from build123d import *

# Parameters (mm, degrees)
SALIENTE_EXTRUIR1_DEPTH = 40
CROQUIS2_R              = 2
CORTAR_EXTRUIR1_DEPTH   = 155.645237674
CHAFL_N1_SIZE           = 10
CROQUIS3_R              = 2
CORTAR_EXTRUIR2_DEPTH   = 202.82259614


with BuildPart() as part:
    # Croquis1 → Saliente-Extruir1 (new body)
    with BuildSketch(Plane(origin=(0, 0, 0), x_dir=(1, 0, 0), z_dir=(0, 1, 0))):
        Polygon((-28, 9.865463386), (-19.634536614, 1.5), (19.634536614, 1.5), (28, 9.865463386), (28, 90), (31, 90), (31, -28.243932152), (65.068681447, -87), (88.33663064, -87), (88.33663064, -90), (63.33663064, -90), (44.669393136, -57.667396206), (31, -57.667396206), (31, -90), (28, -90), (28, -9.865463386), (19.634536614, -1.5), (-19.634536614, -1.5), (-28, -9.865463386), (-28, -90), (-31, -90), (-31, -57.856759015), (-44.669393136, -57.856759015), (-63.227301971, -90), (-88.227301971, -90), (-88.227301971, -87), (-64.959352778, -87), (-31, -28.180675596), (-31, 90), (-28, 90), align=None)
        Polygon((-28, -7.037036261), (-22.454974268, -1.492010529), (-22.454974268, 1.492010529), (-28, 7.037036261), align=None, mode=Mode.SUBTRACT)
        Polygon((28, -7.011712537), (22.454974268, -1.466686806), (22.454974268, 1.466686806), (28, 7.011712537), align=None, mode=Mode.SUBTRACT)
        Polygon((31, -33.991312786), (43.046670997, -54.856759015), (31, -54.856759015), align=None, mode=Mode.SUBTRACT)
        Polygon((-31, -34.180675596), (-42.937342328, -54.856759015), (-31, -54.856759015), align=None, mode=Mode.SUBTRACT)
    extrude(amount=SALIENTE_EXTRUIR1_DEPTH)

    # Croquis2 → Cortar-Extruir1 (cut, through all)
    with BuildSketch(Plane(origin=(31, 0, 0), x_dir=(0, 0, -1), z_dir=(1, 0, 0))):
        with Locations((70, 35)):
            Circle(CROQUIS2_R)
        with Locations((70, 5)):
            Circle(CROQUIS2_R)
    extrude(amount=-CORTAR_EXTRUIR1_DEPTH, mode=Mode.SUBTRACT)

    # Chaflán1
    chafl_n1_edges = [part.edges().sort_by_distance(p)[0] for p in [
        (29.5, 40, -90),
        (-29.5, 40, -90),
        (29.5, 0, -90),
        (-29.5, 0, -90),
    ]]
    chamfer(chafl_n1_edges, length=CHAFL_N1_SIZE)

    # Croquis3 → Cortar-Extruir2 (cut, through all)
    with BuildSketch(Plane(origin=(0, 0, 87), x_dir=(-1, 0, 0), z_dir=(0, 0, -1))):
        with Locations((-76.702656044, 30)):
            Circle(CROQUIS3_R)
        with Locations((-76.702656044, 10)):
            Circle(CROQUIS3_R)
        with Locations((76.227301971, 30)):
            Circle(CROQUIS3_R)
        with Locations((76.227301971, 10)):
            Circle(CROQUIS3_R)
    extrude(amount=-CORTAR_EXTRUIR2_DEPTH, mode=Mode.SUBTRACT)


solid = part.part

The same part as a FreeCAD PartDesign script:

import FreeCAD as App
import Part
import Sketcher

V = App.Vector
Q = App.Units.Quantity


def edges_at(feature, points):
    """Names of the edges that pass closest to the given points."""
    edges = feature.Shape.Edges
    near = lambda p: min(range(len(edges)), key=lambda i: edges[i].distToShape(Part.Vertex(*p))[0])
    return sorted({f"Edge{near(p) + 1}" for p in points})

doc = App.newDocument("Part")
params = doc.addObject("Spreadsheet::Sheet", "Params")
for row, (alias, value) in enumerate([
    ("sketch1_width", "3 mm"),
    ("sketch1_width2", "25 mm"),
    ("pad1_length", "40 mm"),
    ("sketch2_diameter", "4 mm"),
    ("chamfer_size", "10 mm"),
    ("sketch3_diameter", "4 mm"),
], start=1):
    params.set(f"A{row}", alias)
    params.set(f"B{row}", "=" + value)
    params.setAlias(f"B{row}", alias)

body = doc.addObject("PartDesign::Body", "Body")

sketch1 = body.newObject("Sketcher::SketchObject", "Sketch")
sketch1.AttachmentSupport = (doc.getObject("XZ_Plane"), [""])
sketch1.MapMode = "FlatFace"
sketch1.addGeometry(Part.LineSegment(V(-19.634537, -1.5, 0), V(-28, -9.865463, 0)), False)
sketch1.addGeometry(Part.LineSegment(V(-28, -9.865463, 0), V(-28, -90, 0)), False)
sketch1.addGeometry(Part.LineSegment(V(-28, -90, 0), V(-31, -90, 0)), False)
sketch1.addGeometry(Part.LineSegment(V(-31, -90, 0), V(-31, 28.180676, 0)), False)
sketch1.addGeometry(Part.LineSegment(V(-31, 28.180676, 0), V(-64.959353, 87, 0)), False)
sketch1.addGeometry(Part.LineSegment(V(-64.959353, 87, 0), V(-88.227302, 87, 0)), False)
sketch1.addGeometry(Part.LineSegment(V(-88.227302, 87, 0), V(-88.227302, 90, 0)), False)
sketch1.addGeometry(Part.LineSegment(V(-88.227302, 90, 0), V(-63.227302, 90, 0)), False)
sketch1.addGeometry(Part.LineSegment(V(-63.227302, 90, 0), V(-44.669393, 57.856759, 0)), False)
sketch1.addGeometry(Part.LineSegment(V(-44.669393, 57.856759, 0), V(-31, 57.856759, 0)), False)
sketch1.addGeometry(Part.LineSegment(V(-31, 57.856759, 0), V(-31, 90, 0)), False)
sketch1.addGeometry(Part.LineSegment(V(-31, 90, 0), V(-28, 90, 0)), False)
sketch1.addGeometry(Part.LineSegment(V(-28, 90, 0), V(-28, 9.865463, 0)), False)
sketch1.addGeometry(Part.LineSegment(V(-28, 9.865463, 0), V(-19.634537, 1.5, 0)), False)
sketch1.addGeometry(Part.LineSegment(V(-19.634537, 1.5, 0), V(19.634537, 1.5, 0)), False)
sketch1.addGeometry(Part.LineSegment(V(19.634537, 1.5, 0), V(28, 9.865463, 0)), False)
sketch1.addGeometry(Part.LineSegment(V(28, 9.865463, 0), V(28, 90, 0)), False)
sketch1.addGeometry(Part.LineSegment(V(28, 90, 0), V(31, 90, 0)), False)
sketch1.addGeometry(Part.LineSegment(V(31, 90, 0), V(31, 57.667396, 0)), False)
sketch1.addGeometry(Part.LineSegment(V(31, 57.667396, 0), V(44.669393, 57.667396, 0)), False)
sketch1.addGeometry(Part.LineSegment(V(44.669393, 57.667396, 0), V(63.336631, 90, 0)), False)
sketch1.addGeometry(Part.LineSegment(V(63.336631, 90, 0), V(88.336631, 90, 0)), False)
sketch1.addGeometry(Part.LineSegment(V(88.336631, 90, 0), V(88.336631, 87, 0)), False)
sketch1.addGeometry(Part.LineSegment(V(88.336631, 87, 0), V(65.068681, 87, 0)), False)
sketch1.addGeometry(Part.LineSegment(V(65.068681, 87, 0), V(31, 28.243932, 0)), False)
sketch1.addGeometry(Part.LineSegment(V(31, 28.243932, 0), V(31, -90, 0)), False)
sketch1.addGeometry(Part.LineSegment(V(31, -90, 0), V(28, -90, 0)), False)
sketch1.addGeometry(Part.LineSegment(V(28, -90, 0), V(28, -9.865463, 0)), False)
sketch1.addGeometry(Part.LineSegment(V(28, -9.865463, 0), V(19.634537, -1.5, 0)), False)
sketch1.addGeometry(Part.LineSegment(V(19.634537, -1.5, 0), V(-19.634537, -1.5, 0)), False)
sketch1.addGeometry(Part.LineSegment(V(31, 33.991313, 0), V(43.046671, 54.856759, 0)), False)
sketch1.addGeometry(Part.LineSegment(V(43.046671, 54.856759, 0), V(31, 54.856759, 0)), False)
sketch1.addGeometry(Part.LineSegment(V(31, 54.856759, 0), V(31, 33.991313, 0)), False)
sketch1.addGeometry(Part.LineSegment(V(-31, 34.180676, 0), V(-31, 54.856759, 0)), False)
sketch1.addGeometry(Part.LineSegment(V(-31, 54.856759, 0), V(-42.937342, 54.856759, 0)), False)
sketch1.addGeometry(Part.LineSegment(V(-42.937342, 54.856759, 0), V(-31, 34.180676, 0)), False)
sketch1.addGeometry(Part.LineSegment(V(28, 7.011713, 0), V(22.454974, 1.466687, 0)), False)
sketch1.addGeometry(Part.LineSegment(V(22.454974, 1.466687, 0), V(22.454974, -1.466687, 0)), False)
sketch1.addGeometry(Part.LineSegment(V(22.454974, -1.466687, 0), V(28, -7.011713, 0)), False)
sketch1.addGeometry(Part.LineSegment(V(28, -7.011713, 0), V(28, 7.011713, 0)), False)
sketch1.addGeometry(Part.LineSegment(V(-28, 7.037036, 0), V(-28, -7.037036, 0)), False)
sketch1.addGeometry(Part.LineSegment(V(-28, -7.037036, 0), V(-22.454974, -1.492011, 0)), False)
sketch1.addGeometry(Part.LineSegment(V(-22.454974, -1.492011, 0), V(-22.454974, 1.492011, 0)), False)
sketch1.addGeometry(Part.LineSegment(V(-22.454974, 1.492011, 0), V(-28, 7.037036, 0)), False)
sketch1.addConstraint(Sketcher.Constraint("Coincident", 0, 2, 1, 1))
sketch1.addConstraint(Sketcher.Constraint("Coincident", 1, 2, 2, 1))
sketch1.addConstraint(Sketcher.Constraint("Coincident", 2, 2, 3, 1))
sketch1.addConstraint(Sketcher.Constraint("Coincident", 3, 2, 4, 1))
sketch1.addConstraint(Sketcher.Constraint("Coincident", 4, 2, 5, 1))
sketch1.addConstraint(Sketcher.Constraint("Coincident", 5, 2, 6, 1))
sketch1.addConstraint(Sketcher.Constraint("Coincident", 6, 2, 7, 1))
sketch1.addConstraint(Sketcher.Constraint("Coincident", 7, 2, 8, 1))
sketch1.addConstraint(Sketcher.Constraint("Coincident", 8, 2, 9, 1))
sketch1.addConstraint(Sketcher.Constraint("Coincident", 9, 2, 10, 1))
sketch1.addConstraint(Sketcher.Constraint("Coincident", 10, 2, 11, 1))
sketch1.addConstraint(Sketcher.Constraint("Coincident", 11, 2, 12, 1))
sketch1.addConstraint(Sketcher.Constraint("Coincident", 12, 2, 13, 1))
sketch1.addConstraint(Sketcher.Constraint("Coincident", 13, 2, 14, 1))
sketch1.addConstraint(Sketcher.Constraint("Coincident", 14, 2, 15, 1))
sketch1.addConstraint(Sketcher.Constraint("Coincident", 15, 2, 16, 1))
sketch1.addConstraint(Sketcher.Constraint("Coincident", 16, 2, 17, 1))
sketch1.addConstraint(Sketcher.Constraint("Coincident", 17, 2, 18, 1))
sketch1.addConstraint(Sketcher.Constraint("Coincident", 18, 2, 19, 1))
sketch1.addConstraint(Sketcher.Constraint("Coincident", 19, 2, 20, 1))
sketch1.addConstraint(Sketcher.Constraint("Coincident", 20, 2, 21, 1))
sketch1.addConstraint(Sketcher.Constraint("Coincident", 21, 2, 22, 1))
sketch1.addConstraint(Sketcher.Constraint("Coincident", 22, 2, 23, 1))
sketch1.addConstraint(Sketcher.Constraint("Coincident", 23, 2, 24, 1))
sketch1.addConstraint(Sketcher.Constraint("Coincident", 24, 2, 25, 1))
sketch1.addConstraint(Sketcher.Constraint("Coincident", 25, 2, 26, 1))
sketch1.addConstraint(Sketcher.Constraint("Coincident", 26, 2, 27, 1))
sketch1.addConstraint(Sketcher.Constraint("Coincident", 27, 2, 28, 1))
sketch1.addConstraint(Sketcher.Constraint("Coincident", 28, 2, 29, 1))
sketch1.addConstraint(Sketcher.Constraint("Coincident", 29, 2, 0, 1))
sketch1.addConstraint(Sketcher.Constraint("Coincident", 30, 2, 31, 1))
sketch1.addConstraint(Sketcher.Constraint("Coincident", 31, 2, 32, 1))
sketch1.addConstraint(Sketcher.Constraint("Coincident", 32, 2, 30, 1))
sketch1.addConstraint(Sketcher.Constraint("Coincident", 33, 2, 34, 1))
sketch1.addConstraint(Sketcher.Constraint("Coincident", 34, 2, 35, 1))
sketch1.addConstraint(Sketcher.Constraint("Coincident", 35, 2, 33, 1))
sketch1.addConstraint(Sketcher.Constraint("Coincident", 36, 2, 37, 1))
sketch1.addConstraint(Sketcher.Constraint("Coincident", 37, 2, 38, 1))
sketch1.addConstraint(Sketcher.Constraint("Coincident", 38, 2, 39, 1))
sketch1.addConstraint(Sketcher.Constraint("Coincident", 39, 2, 36, 1))
sketch1.addConstraint(Sketcher.Constraint("Coincident", 40, 2, 41, 1))
sketch1.addConstraint(Sketcher.Constraint("Coincident", 41, 2, 42, 1))
sketch1.addConstraint(Sketcher.Constraint("Coincident", 42, 2, 43, 1))
sketch1.addConstraint(Sketcher.Constraint("Coincident", 43, 2, 40, 1))
sketch1.addConstraint(Sketcher.Constraint("Vertical", 1))
sketch1.addConstraint(Sketcher.Constraint("Horizontal", 2))
sketch1.addConstraint(Sketcher.Constraint("Vertical", 3))
sketch1.addConstraint(Sketcher.Constraint("Horizontal", 5))
sketch1.addConstraint(Sketcher.Constraint("Vertical", 6))
sketch1.addConstraint(Sketcher.Constraint("Horizontal", 7))
sketch1.addConstraint(Sketcher.Constraint("Horizontal", 9))
sketch1.addConstraint(Sketcher.Constraint("Vertical", 10))
sketch1.addConstraint(Sketcher.Constraint("Horizontal", 11))
sketch1.addConstraint(Sketcher.Constraint("Vertical", 12))
sketch1.addConstraint(Sketcher.Constraint("Horizontal", 14))
sketch1.addConstraint(Sketcher.Constraint("Vertical", 16))
sketch1.addConstraint(Sketcher.Constraint("Horizontal", 17))
sketch1.addConstraint(Sketcher.Constraint("Vertical", 18))
sketch1.addConstraint(Sketcher.Constraint("Horizontal", 19))
sketch1.addConstraint(Sketcher.Constraint("Horizontal", 21))
sketch1.addConstraint(Sketcher.Constraint("Vertical", 22))
sketch1.addConstraint(Sketcher.Constraint("Horizontal", 23))
sketch1.addConstraint(Sketcher.Constraint("Vertical", 25))
sketch1.addConstraint(Sketcher.Constraint("Horizontal", 26))
sketch1.addConstraint(Sketcher.Constraint("Vertical", 27))
sketch1.addConstraint(Sketcher.Constraint("Horizontal", 29))
sketch1.addConstraint(Sketcher.Constraint("Horizontal", 31))
sketch1.addConstraint(Sketcher.Constraint("Vertical", 32))
sketch1.addConstraint(Sketcher.Constraint("Vertical", 33))
sketch1.addConstraint(Sketcher.Constraint("Horizontal", 34))
sketch1.addConstraint(Sketcher.Constraint("Vertical", 37))
sketch1.addConstraint(Sketcher.Constraint("Vertical", 39))
sketch1.addConstraint(Sketcher.Constraint("Vertical", 40))
sketch1.addConstraint(Sketcher.Constraint("Vertical", 42))
sketch1.addConstraint(Sketcher.Constraint("Symmetric", 0, 2, 15, 2, -1, 1))
sketch1.addConstraint(Sketcher.Constraint("Symmetric", 2, 2, 17, 2, -1, 1))
sketch1.addConstraint(Sketcher.Constraint("Symmetric", 10, 2, 25, 2, -1, 1))
sketch1.addConstraint(Sketcher.Constraint("Symmetric", 12, 2, 27, 2, -1, 1))
sketch1.addConstraint(Sketcher.Constraint("Symmetric", 13, 2, 28, 2, -1, 1))
sketch1.addConstraint(Sketcher.Constraint("Symmetric", 12, 2, 15, 2, -2))
sketch1.addConstraint(Sketcher.Constraint("Symmetric", 10, 2, 17, 2, -2))
sketch1.addConstraint(Sketcher.Constraint("Symmetric", 31, 2, 33, 2, -2))
sketch1.addConstraint(Sketcher.Constraint("Parallel", 4, 8))
sketch1.addConstraint(Sketcher.Constraint("Perpendicular", 0, 13))
sketch1.addConstraint(Sketcher.Constraint("Perpendicular", 13, 15))
sketch1.addConstraint(Sketcher.Constraint("Parallel", 20, 30))
sketch1.addConstraint(Sketcher.Constraint("Parallel", 8, 35))
sketch1.addConstraint(Sketcher.Constraint("Perpendicular", 28, 36))
sketch1.addConstraint(Sketcher.Constraint("Perpendicular", 36, 38))
sketch1.addConstraint(Sketcher.Constraint("Perpendicular", 38, 41))
sketch1.addConstraint(Sketcher.Constraint("Perpendicular", 41, 43))
sketch1.addConstraint(Sketcher.Constraint("Horizontal", 7, 2, 10, 2))
sketch1.addConstraint(Sketcher.Constraint("Horizontal", 17, 2, 20, 2))
sketch1.addConstraint(Sketcher.Constraint("Horizontal", 5, 2, 22, 2))
sketch1.addConstraint(Sketcher.Constraint("Vertical", 14, 2, 28, 2))
sketch1.addConstraint(Sketcher.Constraint("Vertical", 25, 2, 31, 2))
sketch1.addConstraint(Sketcher.Constraint("Vertical", 27, 2, 38, 2))
sketch1.addConstraint(Sketcher.Constraint("Vertical", 12, 2, 40, 2))
sketch1.addConstraint(Sketcher.Constraint("Equal", 9, 19))
sketch1.addConstraint(Sketcher.Constraint("Equal", 7, 21))
sketch1.addConstraint(Sketcher.Constraint("Equal", 5, 23))
sketch1.addConstraint(Sketcher.Constraint("Equal", 26, 6))
sketch1.addConstraint(Sketcher.Constraint("Equal", 4, 24))
sketch1.addConstraint(Sketcher.Constraint("Equal", 38, 41))
sketch1.addConstraint(Sketcher.Constraint("DistanceX", 2, 2, 2, 1, 3.0))
sketch1.addConstraint(Sketcher.Constraint("DistanceX", 7, 1, 7, 2, 25.0))
sketch1.addConstraint(Sketcher.Constraint("Angle", 4, Q("120 deg")))
sketch1.addConstraint(Sketcher.Constraint("Angle", 20, Q("60 deg")))
sketch1.addConstraint(Sketcher.Constraint("DistanceX", 0, 2, -1, 1, 28.0))
sketch1.addConstraint(Sketcher.Constraint("DistanceY", 1, 2, -1, 1, 90.0))
sketch1.addConstraint(Sketcher.Constraint("DistanceY", 28, 2, 14, 2, 3.0))
sketch1.addConstraint(Sketcher.Constraint("DistanceY", 33, 2, 9, 2, 3.0))
sketch1.addConstraint(Sketcher.Constraint("DistanceY", 3, 2, 35, 2, 6.0))
sketch1.addConstraint(Sketcher.Constraint("DistanceX", 5, 2, 5, 1, 23.267949))
sketch1.addConstraint(Sketcher.Constraint("DistanceX", 31, 2, 31, 1, 12.046671))
sketch1.addConstraint(Sketcher.Constraint("DistanceY", 10, 1, 10, 2, 32.143241))
sketch1.addConstraint(Sketcher.Constraint("DistanceY", 42, 1, 42, 2, 2.984021))
sketch1.addConstraint(Sketcher.Constraint("DistanceX", 5, 2, -1, 1, 88.227302))
sketch1.addConstraint(Sketcher.Constraint("DistanceY", 38, 2, 36, 2, 8.478399))
sketch1.addConstraint(Sketcher.Constraint("DistanceY", 40, 2, 12, 2, 16.9025))
sketch1.addConstraint(Sketcher.Constraint("Distance", 0, 11.830552))
sketch1.addConstraint(Sketcher.Constraint("Distance", 36, 7.841851))
sketch1.addConstraint(Sketcher.Constraint("DistanceY", 18, 2, 18, 1, 32.332604))
sketch1.addConstraint(Sketcher.Constraint("DistanceY", 27, 2, 36, 2, 11.33215))
sketch1.setExpression("Constraints[104]", "Params.sketch1_width")
sketch1.setExpression("Constraints[105]", "Params.sketch1_width2")
pad1 = body.newObject("PartDesign::Pad", "Pad")
pad1.Profile = sketch1
pad1.setExpression("Length", "Params.pad1_length")
pad1.Reversed = True

sketch2 = body.newObject("Sketcher::SketchObject", "Sketch001")
sketch2.AttachmentSupport = (doc.getObject("YZ_Plane"), [""])
sketch2.MapMode = "FlatFace"
sketch2.AttachmentOffset = App.Placement(V(0, 0, 31), App.Rotation())
sketch2.addGeometry(Part.Circle(V(35, -70, 0), V(0, 0, 1), 2), False)
sketch2.addGeometry(Part.Circle(V(5, -70, 0), V(0, 0, 1), 2), False)
sketch2.addConstraint(Sketcher.Constraint("Equal", 0, 1))
sketch2.addConstraint(Sketcher.Constraint("Horizontal", 0, 3, 1, 3))
sketch2.addConstraint(Sketcher.Constraint("Diameter", 0, 4.0))
sketch2.addConstraint(Sketcher.Constraint("DistanceX", -1, 1, 0, 3, 35.0))
sketch2.addConstraint(Sketcher.Constraint("DistanceY", 0, 3, -1, 1, 70.0))
sketch2.addConstraint(Sketcher.Constraint("DistanceX", -1, 1, 1, 3, 5.0))
sketch2.setExpression("Constraints[2]", "Params.sketch2_diameter")
pocket1 = body.newObject("PartDesign::Pocket", "Pocket")
pocket1.Profile = sketch2
pocket1.Type = "ThroughAll"
doc.recompute()

chamfer = body.newObject("PartDesign::Chamfer", "Chamfer")
chamfer.Base = (pocket1, edges_at(pocket1, [
    (29.5, 40, -90),
    (-29.5, 40, -90),
    (29.5, 0, -90),
    (-29.5, 0, -90),
]))
chamfer.setExpression("Size", "Params.chamfer_size")

sketch3 = body.newObject("Sketcher::SketchObject", "Sketch002")
sketch3.AttachmentSupport = (doc.getObject("XY_Plane"), [""])
sketch3.MapMode = "FlatFace"
sketch3.AttachmentOffset = App.Placement(V(0, 0, 87), App.Rotation())
sketch3.addGeometry(Part.Circle(V(76.702656, 30, 0), V(0, 0, 1), 2), False)
sketch3.addGeometry(Part.Circle(V(76.702656, 10, 0), V(0, 0, 1), 2), False)
sketch3.addGeometry(Part.Circle(V(-76.227302, 30, 0), V(0, 0, 1), 2), False)
sketch3.addGeometry(Part.Circle(V(-76.227302, 10, 0), V(0, 0, 1), 2), False)
sketch3.addConstraint(Sketcher.Constraint("Equal", 0, 1))
sketch3.addConstraint(Sketcher.Constraint("Equal", 1, 2))
sketch3.addConstraint(Sketcher.Constraint("Equal", 2, 3))
sketch3.addConstraint(Sketcher.Constraint("Horizontal", 0, 3, 2, 3))
sketch3.addConstraint(Sketcher.Constraint("Horizontal", 1, 3, 3, 3))
sketch3.addConstraint(Sketcher.Constraint("Vertical", 0, 3, 1, 3))
sketch3.addConstraint(Sketcher.Constraint("Vertical", 2, 3, 3, 3))
sketch3.addConstraint(Sketcher.Constraint("Diameter", 0, 4.0))
sketch3.addConstraint(Sketcher.Constraint("DistanceY", -1, 1, 0, 3, 30.0))
sketch3.addConstraint(Sketcher.Constraint("DistanceY", -1, 1, 1, 3, 10.0))
sketch3.addConstraint(Sketcher.Constraint("DistanceX", 2, 3, -1, 1, 76.227302))
sketch3.addConstraint(Sketcher.Constraint("DistanceX", 2, 3, 0, 3, 152.929958))
sketch3.setExpression("Constraints[7]", "Params.sketch3_diameter")
pocket2 = body.newObject("PartDesign::Pocket", "Pocket001")
pocket2.Profile = sketch3
pocket2.Type = "ThroughAll"
pocket2.Reversed = True

doc.recompute()
